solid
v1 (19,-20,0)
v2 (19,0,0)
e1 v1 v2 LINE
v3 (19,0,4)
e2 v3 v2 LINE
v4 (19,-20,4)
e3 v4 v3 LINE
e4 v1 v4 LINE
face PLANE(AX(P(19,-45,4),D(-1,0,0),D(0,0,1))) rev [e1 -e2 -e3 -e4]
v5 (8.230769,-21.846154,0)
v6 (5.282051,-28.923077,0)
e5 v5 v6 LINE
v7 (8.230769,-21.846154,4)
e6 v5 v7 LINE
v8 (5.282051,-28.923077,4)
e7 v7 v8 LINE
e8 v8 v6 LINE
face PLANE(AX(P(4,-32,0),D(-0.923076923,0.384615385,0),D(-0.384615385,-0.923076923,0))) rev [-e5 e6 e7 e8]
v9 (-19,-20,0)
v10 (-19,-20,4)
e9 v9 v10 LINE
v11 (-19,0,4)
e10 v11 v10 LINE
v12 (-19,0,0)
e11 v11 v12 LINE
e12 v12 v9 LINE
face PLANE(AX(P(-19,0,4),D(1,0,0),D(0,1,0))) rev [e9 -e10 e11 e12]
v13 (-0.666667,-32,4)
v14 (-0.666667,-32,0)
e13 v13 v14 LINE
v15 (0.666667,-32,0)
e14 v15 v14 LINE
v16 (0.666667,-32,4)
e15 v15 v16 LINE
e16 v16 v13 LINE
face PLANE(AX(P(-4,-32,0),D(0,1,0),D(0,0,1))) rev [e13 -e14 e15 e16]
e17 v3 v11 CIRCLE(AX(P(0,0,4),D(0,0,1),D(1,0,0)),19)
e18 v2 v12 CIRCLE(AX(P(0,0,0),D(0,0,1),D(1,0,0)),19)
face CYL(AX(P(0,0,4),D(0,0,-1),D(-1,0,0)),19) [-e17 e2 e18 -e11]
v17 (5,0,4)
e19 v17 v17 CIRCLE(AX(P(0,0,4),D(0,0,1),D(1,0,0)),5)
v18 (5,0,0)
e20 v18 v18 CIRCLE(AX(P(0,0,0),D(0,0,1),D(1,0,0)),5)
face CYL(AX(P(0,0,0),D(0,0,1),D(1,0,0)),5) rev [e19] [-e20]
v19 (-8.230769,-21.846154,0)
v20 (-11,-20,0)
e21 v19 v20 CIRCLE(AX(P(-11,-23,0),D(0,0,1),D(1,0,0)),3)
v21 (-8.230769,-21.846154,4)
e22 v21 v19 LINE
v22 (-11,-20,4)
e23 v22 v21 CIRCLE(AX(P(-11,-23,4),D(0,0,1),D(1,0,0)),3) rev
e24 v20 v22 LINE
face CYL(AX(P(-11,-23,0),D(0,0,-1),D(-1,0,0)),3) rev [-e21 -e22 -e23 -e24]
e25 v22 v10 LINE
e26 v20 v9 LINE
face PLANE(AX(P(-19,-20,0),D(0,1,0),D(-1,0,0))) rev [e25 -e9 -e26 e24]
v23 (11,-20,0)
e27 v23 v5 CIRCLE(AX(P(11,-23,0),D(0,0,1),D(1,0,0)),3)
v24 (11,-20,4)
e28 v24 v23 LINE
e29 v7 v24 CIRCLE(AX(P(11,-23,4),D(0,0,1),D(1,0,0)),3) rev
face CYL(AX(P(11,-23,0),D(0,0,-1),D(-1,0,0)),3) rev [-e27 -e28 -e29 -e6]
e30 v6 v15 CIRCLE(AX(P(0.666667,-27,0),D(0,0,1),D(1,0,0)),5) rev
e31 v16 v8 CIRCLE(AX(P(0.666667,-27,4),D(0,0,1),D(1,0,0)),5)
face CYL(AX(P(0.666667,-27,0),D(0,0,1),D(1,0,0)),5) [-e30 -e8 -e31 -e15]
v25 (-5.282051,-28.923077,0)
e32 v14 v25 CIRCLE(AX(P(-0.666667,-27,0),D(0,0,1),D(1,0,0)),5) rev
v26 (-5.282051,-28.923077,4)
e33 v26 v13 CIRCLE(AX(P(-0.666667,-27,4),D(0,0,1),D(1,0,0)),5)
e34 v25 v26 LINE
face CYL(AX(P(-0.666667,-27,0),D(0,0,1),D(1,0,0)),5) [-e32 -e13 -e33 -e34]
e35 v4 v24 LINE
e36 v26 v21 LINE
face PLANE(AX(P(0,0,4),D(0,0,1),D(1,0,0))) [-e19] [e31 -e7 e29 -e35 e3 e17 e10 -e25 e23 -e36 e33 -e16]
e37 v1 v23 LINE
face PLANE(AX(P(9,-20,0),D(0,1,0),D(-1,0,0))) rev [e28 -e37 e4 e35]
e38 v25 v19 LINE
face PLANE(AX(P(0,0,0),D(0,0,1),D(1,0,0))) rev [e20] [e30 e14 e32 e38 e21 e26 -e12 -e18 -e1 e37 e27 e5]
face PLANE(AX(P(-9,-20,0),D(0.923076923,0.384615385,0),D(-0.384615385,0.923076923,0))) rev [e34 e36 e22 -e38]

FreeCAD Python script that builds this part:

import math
import FreeCAD as App
import Part
import Sketcher
from FreeCAD import Vector


def edges_at(feature, points):
    """Names of the edges that pass closest to the given points."""
    edges = feature.Shape.Edges
    near = lambda p: min(range(len(edges)), key=lambda i: edges[i].distToShape(Part.Vertex(*p))[0])
    return sorted({f"Edge{near(p) + 1}" for p in points})


def add_polygon(sketch, points):
    """Adds a closed chain of lines whose ends are joined by coincident constraints."""
    first, n = sketch.GeometryCount, len(points)
    for a, b in zip(points, points[1:] + points[:1]):
        sketch.addGeometry(Part.LineSegment(App.Vector(*a, 0), App.Vector(*b, 0)), False)
    for i in range(n):
        sketch.addConstraint(Sketcher.Constraint("Coincident", first + i, 2, first + (i + 1) % n, 1))

doc = App.newDocument("Part")
body = doc.addObject("PartDesign::Body", "Body")

# Sketch on XY plane
sketch1 = doc.addObject("Sketcher::SketchObject", "Sketch")
body.addObject(sketch1)
sketch1.AttachmentSupport = (doc.XY_Plane, [""])
sketch1.MapMode = "FlatFace"
sketch1.addGeometry([
    Part.LineSegment(Vector(-19, 0, 0), Vector(-19, -32, 0)),  # 0
    Part.LineSegment(Vector(-19, -32, 0), Vector(-14.8, -32, 0)),  # 1
    Part.LineSegment(Vector(-14.8, -32, 0), Vector(-14.8, -45, 0)),  # 2
    Part.LineSegment(Vector(-14.8, -45, 0), Vector(-5, -45, 0)),  # 3
    Part.LineSegment(Vector(-5, -45, 0), Vector(-5, -42, 0)),  # 4
    Part.LineSegment(Vector(-5, -42, 0), Vector(5, -42, 0)),  # 5
    Part.LineSegment(Vector(5, -42, 0), Vector(5, -45, 0)),  # 6
    Part.LineSegment(Vector(5, -45, 0), Vector(19, -45, 0)),  # 7
    Part.LineSegment(Vector(19, -45, 0), Vector(19, 0, 0)),  # 8
    Part.ArcOfCircle(Part.Circle(Vector(0, 0, 0), Vector(0, 0, 1), 19), math.radians(0), math.radians(180)),  # 9
    Part.Circle(Vector(-14, -27, 0), Vector(0, 0, 1), 1.5),  # 10
    Part.Circle(Vector(14, -27, 0), Vector(0, 0, 1), 1.5),  # 11
    Part.Circle(Vector(0, 0, 0), Vector(0, 0, 1), 2.5),  # 12
], False)
sketch1.addConstraint([
    Sketcher.Constraint("Coincident", 0, 2, 1, 1),
    Sketcher.Constraint("Coincident", 1, 2, 2, 1),
    Sketcher.Constraint("Coincident", 2, 2, 3, 1),
    Sketcher.Constraint("Coincident", 3, 2, 4, 1),
    Sketcher.Constraint("Coincident", 4, 2, 5, 1),
    Sketcher.Constraint("Coincident", 5, 2, 6, 1),
    Sketcher.Constraint("Coincident", 6, 2, 7, 1),
    Sketcher.Constraint("Coincident", 7, 2, 8, 1),
    Sketcher.Constraint("Tangent", 8, 2, 9, 1),
    Sketcher.Constraint("Tangent", 9, 2, 0, 1),
    Sketcher.Constraint("Vertical", 0),
    Sketcher.Constraint("Horizontal", 1),
    Sketcher.Constraint("Vertical", 2),
    Sketcher.Constraint("Horizontal", 3),
    Sketcher.Constraint("Vertical", 4),
    Sketcher.Constraint("Horizontal", 5),
    Sketcher.Constraint("Vertical", 6),
    Sketcher.Constraint("Horizontal", 7),
    Sketcher.Constraint("Vertical", 8),
    Sketcher.Constraint("Coincident", 9, 3, -1, 1),
    Sketcher.Constraint("Coincident", 12, 3, -1, 1),
    Sketcher.Constraint("Equal", 10, 11),
    Sketcher.Constraint("Symmetric", 10, 3, 11, 3, -2),
    Sketcher.Constraint("Symmetric", 3, 2, 6, 2, -2),
    Sketcher.Constraint("Diameter", 10, 3.0),
    Sketcher.Constraint("Diameter", 12, 5.0),
    Sketcher.Constraint("Radius", 9, 19.0),
    Sketcher.Constraint("DistanceX", 5, 1, 5, 2, 10.0),
    Sketcher.Constraint("DistanceY", 0, 2, 0, 1, 32.0),
    Sketcher.Constraint("DistanceY", 2, 2, 2, 1, 13.0),
    Sketcher.Constraint("DistanceY", 4, 1, 4, 2, 3.0),
    Sketcher.Constraint("DistanceX", 1, 1, 1, 2, 4.2),
    Sketcher.Constraint("DistanceX", 10, 3, -1, 1, 14.0),
    Sketcher.Constraint("DistanceY", 10, 3, -1, 1, 27.0),
])
pad1 = doc.addObject("PartDesign::Pad", "Pad")
body.addObject(pad1)
pad1.Profile = sketch1
pad1.Length = 4

# Sketch on XY plane
sketch2 = doc.addObject("Sketcher::SketchObject", "Sketch001")
body.addObject(sketch2)
sketch2.AttachmentSupport = (doc.XY_Plane, [""])
sketch2.MapMode = "FlatFace"
sketch2.AttachmentOffset = App.Placement(Vector(0, 0, 4), App.Rotation())
sketch2.addGeometry(Part.Circle(Vector(0, 0, 0), Vector(0, 0, 1), 5), False)  # 0
add_polygon(sketch2, [(-9, -20), (-19, -20), (-19, -45), (19, -45), (19, -20), (9, -20), (4, -32), (-4, -32)])  # lines 1-8
sketch2.addConstraint([
    Sketcher.Constraint("Horizontal", 1),
    Sketcher.Constraint("Vertical", 2),
    Sketcher.Constraint("Horizontal", 3),
    Sketcher.Constraint("Vertical", 4),
    Sketcher.Constraint("Horizontal", 5),
    Sketcher.Constraint("Horizontal", 7),
    Sketcher.Constraint("Coincident", 0, 3, -1, 1),
    Sketcher.Constraint("Symmetric", 1, 2, 4, 2, -2),
    Sketcher.Constraint("Equal", 1, 5),
    Sketcher.Constraint("Equal", 6, 8),
    Sketcher.Constraint("Diameter", 0, 10.0),
    Sketcher.Constraint("DistanceX", 1, 2, 1, 1, 10.0),
    Sketcher.Constraint("DistanceX", 3, 1, 3, 2, 38.0),
    Sketcher.Constraint("DistanceX", 7, 2, 7, 1, 8.0),
    Sketcher.Constraint("DistanceY", 2, 2, 2, 1, 25.0),
    Sketcher.Constraint("Distance", 6, 13.0),
    Sketcher.Constraint("DistanceY", 1, 2, -1, 1, 20.0),
])
pocket1 = doc.addObject("PartDesign::Pocket", "Pocket")
body.addObject(pocket1)
pocket1.Profile = sketch2
pocket1.Type = "ThroughAll"
doc.recompute()

fillet = doc.addObject("PartDesign::Fillet", "Fillet")
body.addObject(fillet)
fillet.Base = (pocket1, edges_at(pocket1, [(-4, -32, 2), (4, -32, 2)]))
fillet.Radius = 5
doc.recompute()

fillet2 = doc.addObject("PartDesign::Fillet", "Fillet001")
body.addObject(fillet2)
fillet2.Base = (fillet, edges_at(fillet, [(-9, -20, 2), (9, -20, 2)]))
fillet2.Radius = 3

doc.recompute()
